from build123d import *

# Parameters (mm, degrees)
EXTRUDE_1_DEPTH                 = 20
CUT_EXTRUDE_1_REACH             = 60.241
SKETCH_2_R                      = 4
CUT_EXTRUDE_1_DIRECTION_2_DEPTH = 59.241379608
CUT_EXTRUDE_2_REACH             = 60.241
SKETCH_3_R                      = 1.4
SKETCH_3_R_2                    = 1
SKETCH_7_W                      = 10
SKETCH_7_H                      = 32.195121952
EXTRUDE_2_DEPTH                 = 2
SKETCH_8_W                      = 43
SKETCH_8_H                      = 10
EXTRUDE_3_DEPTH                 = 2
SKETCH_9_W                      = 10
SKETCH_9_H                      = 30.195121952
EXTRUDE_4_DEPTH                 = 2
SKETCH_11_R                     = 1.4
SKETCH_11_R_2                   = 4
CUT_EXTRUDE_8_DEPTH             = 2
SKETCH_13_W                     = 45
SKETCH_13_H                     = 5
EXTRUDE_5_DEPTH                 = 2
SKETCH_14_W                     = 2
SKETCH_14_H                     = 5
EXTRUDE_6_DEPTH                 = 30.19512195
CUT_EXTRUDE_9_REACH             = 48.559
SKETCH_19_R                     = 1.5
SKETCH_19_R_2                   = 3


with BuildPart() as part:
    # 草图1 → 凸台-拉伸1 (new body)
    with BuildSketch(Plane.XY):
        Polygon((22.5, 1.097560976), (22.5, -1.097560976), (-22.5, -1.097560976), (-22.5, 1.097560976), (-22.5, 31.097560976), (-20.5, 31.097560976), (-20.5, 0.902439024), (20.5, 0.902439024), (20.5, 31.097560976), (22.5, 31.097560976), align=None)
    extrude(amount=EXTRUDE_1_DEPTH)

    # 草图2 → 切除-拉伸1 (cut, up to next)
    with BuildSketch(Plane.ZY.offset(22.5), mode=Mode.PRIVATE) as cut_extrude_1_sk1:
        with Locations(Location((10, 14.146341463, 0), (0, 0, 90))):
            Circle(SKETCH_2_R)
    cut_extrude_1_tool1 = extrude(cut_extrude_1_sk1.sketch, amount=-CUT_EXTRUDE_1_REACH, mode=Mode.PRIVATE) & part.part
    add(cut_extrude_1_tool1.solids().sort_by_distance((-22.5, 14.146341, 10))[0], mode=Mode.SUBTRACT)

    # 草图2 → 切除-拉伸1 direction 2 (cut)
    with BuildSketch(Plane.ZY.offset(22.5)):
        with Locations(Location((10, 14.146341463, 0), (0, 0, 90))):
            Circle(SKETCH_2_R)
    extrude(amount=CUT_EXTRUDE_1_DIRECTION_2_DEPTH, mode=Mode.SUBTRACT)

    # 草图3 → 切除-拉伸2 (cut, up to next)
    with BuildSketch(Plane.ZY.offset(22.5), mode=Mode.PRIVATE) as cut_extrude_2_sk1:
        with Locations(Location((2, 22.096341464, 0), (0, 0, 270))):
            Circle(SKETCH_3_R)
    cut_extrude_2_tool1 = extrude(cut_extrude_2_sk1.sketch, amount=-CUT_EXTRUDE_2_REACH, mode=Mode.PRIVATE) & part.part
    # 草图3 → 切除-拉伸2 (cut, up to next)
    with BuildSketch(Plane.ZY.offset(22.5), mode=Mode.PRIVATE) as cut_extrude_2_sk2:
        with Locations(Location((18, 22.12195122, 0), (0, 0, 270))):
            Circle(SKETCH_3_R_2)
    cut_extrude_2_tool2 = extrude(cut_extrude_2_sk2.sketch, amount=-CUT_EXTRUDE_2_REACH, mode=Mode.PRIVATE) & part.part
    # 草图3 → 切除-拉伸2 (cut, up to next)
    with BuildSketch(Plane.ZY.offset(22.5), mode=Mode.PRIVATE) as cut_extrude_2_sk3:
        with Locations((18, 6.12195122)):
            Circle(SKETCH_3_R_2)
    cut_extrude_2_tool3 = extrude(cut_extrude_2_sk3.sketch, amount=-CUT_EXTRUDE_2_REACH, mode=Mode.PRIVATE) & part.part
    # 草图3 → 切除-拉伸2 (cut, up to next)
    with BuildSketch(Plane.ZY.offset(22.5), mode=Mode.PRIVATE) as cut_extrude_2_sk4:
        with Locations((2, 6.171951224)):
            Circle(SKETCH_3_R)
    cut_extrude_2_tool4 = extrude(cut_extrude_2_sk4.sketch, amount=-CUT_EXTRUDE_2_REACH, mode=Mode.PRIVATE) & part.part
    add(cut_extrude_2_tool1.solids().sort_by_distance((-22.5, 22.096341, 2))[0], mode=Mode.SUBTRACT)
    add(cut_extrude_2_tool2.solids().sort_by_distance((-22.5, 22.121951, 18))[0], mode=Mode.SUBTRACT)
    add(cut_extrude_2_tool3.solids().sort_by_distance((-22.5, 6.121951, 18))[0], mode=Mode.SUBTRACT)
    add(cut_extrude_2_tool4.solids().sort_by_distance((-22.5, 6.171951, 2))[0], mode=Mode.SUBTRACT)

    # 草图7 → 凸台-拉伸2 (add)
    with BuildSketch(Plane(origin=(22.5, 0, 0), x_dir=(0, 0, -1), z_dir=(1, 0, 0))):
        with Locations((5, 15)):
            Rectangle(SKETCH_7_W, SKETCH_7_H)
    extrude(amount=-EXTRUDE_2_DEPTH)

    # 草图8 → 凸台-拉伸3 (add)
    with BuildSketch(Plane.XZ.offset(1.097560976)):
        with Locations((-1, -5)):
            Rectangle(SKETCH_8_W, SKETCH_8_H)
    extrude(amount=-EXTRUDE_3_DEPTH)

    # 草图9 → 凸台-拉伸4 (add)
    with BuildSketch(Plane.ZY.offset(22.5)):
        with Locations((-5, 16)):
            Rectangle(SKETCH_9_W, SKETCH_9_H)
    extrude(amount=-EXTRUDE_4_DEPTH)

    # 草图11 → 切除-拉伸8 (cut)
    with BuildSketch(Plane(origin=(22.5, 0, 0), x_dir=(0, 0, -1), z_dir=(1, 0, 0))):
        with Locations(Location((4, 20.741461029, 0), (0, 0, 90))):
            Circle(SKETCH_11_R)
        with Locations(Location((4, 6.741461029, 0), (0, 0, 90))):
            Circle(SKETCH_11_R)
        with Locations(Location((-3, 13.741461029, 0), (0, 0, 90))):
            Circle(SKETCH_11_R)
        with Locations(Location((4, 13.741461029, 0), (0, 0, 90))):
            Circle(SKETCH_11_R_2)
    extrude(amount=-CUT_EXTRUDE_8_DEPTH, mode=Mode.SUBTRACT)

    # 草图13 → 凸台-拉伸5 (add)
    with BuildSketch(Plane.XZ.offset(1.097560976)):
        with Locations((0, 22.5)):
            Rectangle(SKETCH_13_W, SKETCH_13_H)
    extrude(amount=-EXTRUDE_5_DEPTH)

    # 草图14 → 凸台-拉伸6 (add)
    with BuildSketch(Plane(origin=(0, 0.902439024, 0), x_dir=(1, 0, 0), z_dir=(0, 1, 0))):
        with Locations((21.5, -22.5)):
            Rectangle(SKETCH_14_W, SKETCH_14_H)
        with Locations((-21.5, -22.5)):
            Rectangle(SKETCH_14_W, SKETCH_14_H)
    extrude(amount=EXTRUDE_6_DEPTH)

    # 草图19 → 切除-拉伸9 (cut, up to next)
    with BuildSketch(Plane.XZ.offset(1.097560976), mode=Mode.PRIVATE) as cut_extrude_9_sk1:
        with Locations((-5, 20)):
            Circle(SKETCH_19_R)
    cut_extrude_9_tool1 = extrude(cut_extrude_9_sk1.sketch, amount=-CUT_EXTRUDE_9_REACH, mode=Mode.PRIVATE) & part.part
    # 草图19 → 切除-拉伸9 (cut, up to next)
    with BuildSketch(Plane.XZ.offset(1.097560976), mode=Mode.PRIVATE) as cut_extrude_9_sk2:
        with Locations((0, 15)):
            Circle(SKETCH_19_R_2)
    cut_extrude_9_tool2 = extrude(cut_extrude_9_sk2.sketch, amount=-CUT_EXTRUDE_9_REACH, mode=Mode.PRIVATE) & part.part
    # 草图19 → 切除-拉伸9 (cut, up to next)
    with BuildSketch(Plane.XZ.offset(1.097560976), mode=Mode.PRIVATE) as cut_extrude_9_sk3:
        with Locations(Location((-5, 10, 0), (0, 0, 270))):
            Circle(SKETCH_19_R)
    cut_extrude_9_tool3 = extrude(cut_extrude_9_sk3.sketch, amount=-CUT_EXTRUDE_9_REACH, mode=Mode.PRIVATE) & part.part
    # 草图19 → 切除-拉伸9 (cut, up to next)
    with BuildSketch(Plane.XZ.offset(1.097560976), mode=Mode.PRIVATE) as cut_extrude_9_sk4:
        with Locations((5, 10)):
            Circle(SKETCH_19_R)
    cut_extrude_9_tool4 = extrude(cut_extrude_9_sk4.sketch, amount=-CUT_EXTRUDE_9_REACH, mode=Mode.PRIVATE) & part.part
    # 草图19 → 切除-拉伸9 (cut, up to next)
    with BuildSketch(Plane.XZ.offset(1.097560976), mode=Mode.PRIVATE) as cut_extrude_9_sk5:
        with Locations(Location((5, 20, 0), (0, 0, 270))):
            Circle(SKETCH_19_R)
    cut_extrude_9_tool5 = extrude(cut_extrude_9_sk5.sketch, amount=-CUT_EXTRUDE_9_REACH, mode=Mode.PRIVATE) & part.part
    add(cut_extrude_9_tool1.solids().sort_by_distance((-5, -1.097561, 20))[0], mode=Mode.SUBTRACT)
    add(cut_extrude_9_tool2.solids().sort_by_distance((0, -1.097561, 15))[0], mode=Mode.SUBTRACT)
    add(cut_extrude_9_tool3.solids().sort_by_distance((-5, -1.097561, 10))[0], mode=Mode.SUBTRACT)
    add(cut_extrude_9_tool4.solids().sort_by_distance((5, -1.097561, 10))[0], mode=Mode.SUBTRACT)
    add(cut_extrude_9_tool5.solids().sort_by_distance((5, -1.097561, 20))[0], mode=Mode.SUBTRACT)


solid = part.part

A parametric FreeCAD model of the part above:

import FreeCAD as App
import Part
import Sketcher

V = App.Vector
Q = App.Units.Quantity


def add_polygon(sketch, points):
    """Adds a closed chain of lines whose ends are joined by coincident constraints."""
    first, n = sketch.GeometryCount, len(points)
    for a, b in zip(points, points[1:] + points[:1]):
        sketch.addGeometry(Part.LineSegment(App.Vector(*a, 0), App.Vector(*b, 0)), False)
    for i in range(n):
        sketch.addConstraint(Sketcher.Constraint("Coincident", first + i, 2, first + (i + 1) % n, 1))

doc = App.newDocument("Part")
params = doc.addObject("Spreadsheet::Sheet", "Params")
for row, (alias, value) in enumerate([
    ("sketch1_width", "2 mm"),
    ("sketch1_width2", "41 mm"),
    ("pad1_length", "20 mm"),
    ("sketch2_diameter", "8 mm"),
    ("sketch3_diameter", "8 mm"),
    ("pocket2_length", "59.24138 mm"),
    ("sketch4_diameter", "2.8 mm"),
    ("sketch5_diameter", "2 mm"),
    ("sketch6_diameter", "2 mm"),
    ("sketch7_diameter", "2.8 mm"),
    ("sketch8_height", "10 mm"),
    ("pad2_length", "2 mm"),
    ("sketch9_width", "43 mm"),
    ("sketch9_height", "10 mm"),
    ("pad3_length", "2 mm"),
    ("sketch10_height", "10 mm"),
    ("pad4_length", "2 mm"),
    ("sketch11_diameter", "8 mm"),
    ("sketch11_diameter2", "2.8 mm"),
    ("pocket7_length", "2 mm"),
    ("sketch12_width", "45 mm"),
    ("sketch12_height", "5 mm"),
    ("pad5_length", "2 mm"),
    ("sketch13_width", "2 mm"),
    ("sketch13_height", "5 mm"),
    ("pad6_length", "30.195122 mm"),
    ("sketch14_diameter", "3 mm"),
    ("sketch15_diameter", "6 mm"),
    ("sketch16_diameter", "3 mm"),
    ("sketch17_diameter", "3 mm"),
    ("sketch18_diameter", "3 mm"),
], start=1):
    params.set(f"A{row}", alias)
    params.set(f"B{row}", "=" + value)
    params.setAlias(f"B{row}", alias)

body = doc.addObject("PartDesign::Body", "Body")

# Sketch on XY plane
sketch1 = doc.addObject("Sketcher::SketchObject", "Sketch")
body.addObject(sketch1)
sketch1.AttachmentSupport = (doc.XY_Plane, [""])
sketch1.MapMode = "FlatFace"
add_polygon(sketch1, [(22.5, -1.097561), (22.5, 31.097561), (20.5, 31.097561), (20.5, 0.902439), (-20.5, 0.902439), (-20.5, 31.097561), (-22.5, 31.097561), (-22.5, -1.097561)])  # lines 0-7
sketch1.addConstraint([
    Sketcher.Constraint("Vertical", 0),
    Sketcher.Constraint("Horizontal", 1),
    Sketcher.Constraint("Vertical", 2),
    Sketcher.Constraint("Horizontal", 3),
    Sketcher.Constraint("Vertical", 4),
    Sketcher.Constraint("Horizontal", 5),
    Sketcher.Constraint("Vertical", 6),
    Sketcher.Constraint("Horizontal", 7),
    Sketcher.Constraint("Symmetric", 1, 2, 4, 2, -2),
    Sketcher.Constraint("Equal", 1, 5),
    Sketcher.Constraint("DistanceX", 1, 2, 1, 1, Q("2 mm")),
    Sketcher.Constraint("DistanceX", 3, 2, 3, 1, Q("41 mm")),
    Sketcher.Constraint("DistanceY", 6, 2, 3, 2, Q("2 mm")),
    Sketcher.Constraint("DistanceY", 0, 1, 0, 2, Q("32.195122 mm")),
    Sketcher.Constraint("DistanceY", -1, 1, 0, 2, Q("31.097561 mm")),
])
sketch1.setExpression("Constraints[18]", "Params.sketch1_width")
sketch1.setExpression("Constraints[19]", "Params.sketch1_width2")
pad1 = doc.addObject("PartDesign::Pad", "Pad")
body.addObject(pad1)
pad1.Profile = sketch1
pad1.setExpression("Length", "Params.pad1_length")

# Sketch on YZ plane
sketch2 = doc.addObject("Sketcher::SketchObject", "Sketch001")
body.addObject(sketch2)
sketch2.AttachmentSupport = (doc.YZ_Plane, [""])
sketch2.MapMode = "FlatFace"
sketch2.AttachmentOffset = App.Placement(V(0, 0, -22.5), App.Rotation())
sketch2.addGeometry(Part.Circle(V(14.146341, 10, 0), V(0, 0, 1), 4), False)
sketch2.addConstraint([
    Sketcher.Constraint("Diameter", 0, Q("8 mm")),
    Sketcher.Constraint("DistanceY", -1, 1, 0, 3, Q("10 mm")),
    Sketcher.Constraint("DistanceX", -1, 1, 0, 3, Q("14.146341 mm")),
])
sketch2.setExpression("Constraints[0]", "Params.sketch2_diameter")
pocket1 = doc.addObject("PartDesign::Pocket", "Pocket")
body.addObject(pocket1)
pocket1.Profile = sketch2
pocket1.Type = "UpToFirst"
pocket1.Reversed = True

# Sketch on YZ plane
sketch3 = doc.addObject("Sketcher::SketchObject", "Sketch002")
body.addObject(sketch3)
sketch3.AttachmentSupport = (doc.YZ_Plane, [""])
sketch3.MapMode = "FlatFace"
sketch3.AttachmentOffset = App.Placement(V(0, 0, -22.5), App.Rotation())
sketch3.addGeometry(Part.Circle(V(14.146341, 10, 0), V(0, 0, 1), 4), False)
sketch3.addConstraint([
    Sketcher.Constraint("Diameter", 0, Q("8 mm")),
    Sketcher.Constraint("DistanceY", -1, 1, 0, 3, Q("10 mm")),
    Sketcher.Constraint("DistanceX", -1, 1, 0, 3, Q("14.146341 mm")),
])
sketch3.setExpression("Constraints[0]", "Params.sketch3_diameter")
pocket2 = doc.addObject("PartDesign::Pocket", "Pocket001")
body.addObject(pocket2)
pocket2.Profile = sketch3
pocket2.setExpression("Length", "Params.pocket2_length")

# Sketch on YZ plane
sketch4 = doc.addObject("Sketcher::SketchObject", "Sketch003")
body.addObject(sketch4)
sketch4.AttachmentSupport = (doc.YZ_Plane, [""])
sketch4.MapMode = "FlatFace"
sketch4.AttachmentOffset = App.Placement(V(0, 0, -22.5), App.Rotation())
sketch4.addGeometry(Part.Circle(V(22.096341, 2, 0), V(0, 0, 1), 1.4), False)
sketch4.addConstraint([
    Sketcher.Constraint("Diameter", 0, Q("2.8 mm")),
    Sketcher.Constraint("DistanceY", -1, 1, 0, 3, Q("2 mm")),
    Sketcher.Constraint("DistanceX", -1, 1, 0, 3, Q("22.096341 mm")),
])
sketch4.setExpression("Constraints[0]", "Params.sketch4_diameter")
pocket3 = doc.addObject("PartDesign::Pocket", "Pocket002")
body.addObject(pocket3)
pocket3.Profile = sketch4
pocket3.Type = "UpToFirst"
pocket3.Reversed = True

# Sketch on YZ plane
sketch5 = doc.addObject("Sketcher::SketchObject", "Sketch004")
body.addObject(sketch5)
sketch5.AttachmentSupport = (doc.YZ_Plane, [""])
sketch5.MapMode = "FlatFace"
sketch5.AttachmentOffset = App.Placement(V(0, 0, -22.5), App.Rotation())
sketch5.addGeometry(Part.Circle(V(22.121951, 18, 0), V(0, 0, 1), 1), False)
sketch5.addConstraint([
    Sketcher.Constraint("Diameter", 0, Q("2 mm")),
    Sketcher.Constraint("DistanceY", -1, 1, 0, 3, Q("18 mm")),
    Sketcher.Constraint("DistanceX", -1, 1, 0, 3, Q("22.121951 mm")),
])
sketch5.setExpression("Constraints[0]", "Params.sketch5_diameter")
pocket4 = doc.addObject("PartDesign::Pocket", "Pocket003")
body.addObject(pocket4)
pocket4.Profile = sketch5
pocket4.Type = "UpToFirst"
pocket4.Reversed = True

# Sketch on YZ plane
sketch6 = doc.addObject("Sketcher::SketchObject", "Sketch005")
body.addObject(sketch6)
sketch6.AttachmentSupport = (doc.YZ_Plane, [""])
sketch6.MapMode = "FlatFace"
sketch6.AttachmentOffset = App.Placement(V(0, 0, -22.5), App.Rotation())
sketch6.addGeometry(Part.Circle(V(6.121951, 18, 0), V(0, 0, 1), 1), False)
sketch6.addConstraint([
    Sketcher.Constraint("Diameter", 0, Q("2 mm")),
    Sketcher.Constraint("DistanceY", -1, 1, 0, 3, Q("18 mm")),
    Sketcher.Constraint("DistanceX", -1, 1, 0, 3, Q("6.121951 mm")),
])
sketch6.setExpression("Constraints[0]", "Params.sketch6_diameter")
pocket5 = doc.addObject("PartDesign::Pocket", "Pocket004")
body.addObject(pocket5)
pocket5.Profile = sketch6
pocket5.Type = "UpToFirst"
pocket5.Reversed = True

# Sketch on YZ plane
sketch7 = doc.addObject("Sketcher::SketchObject", "Sketch006")
body.addObject(sketch7)
sketch7.AttachmentSupport = (doc.YZ_Plane, [""])
sketch7.MapMode = "FlatFace"
sketch7.AttachmentOffset = App.Placement(V(0, 0, -22.5), App.Rotation())
sketch7.addGeometry(Part.Circle(V(6.171951, 2, 0), V(0, 0, 1), 1.4), False)
sketch7.addConstraint([
    Sketcher.Constraint("Diameter", 0, Q("2.8 mm")),
    Sketcher.Constraint("DistanceY", -1, 1, 0, 3, Q("2 mm")),
    Sketcher.Constraint("DistanceX", -1, 1, 0, 3, Q("6.171951 mm")),
])
sketch7.setExpression("Constraints[0]", "Params.sketch7_diameter")
pocket6 = doc.addObject("PartDesign::Pocket", "Pocket005")
body.addObject(pocket6)
pocket6.Profile = sketch7
pocket6.Type = "UpToFirst"
pocket6.Reversed = True

# Sketch on YZ plane
sketch8 = doc.addObject("Sketcher::SketchObject", "Sketch007")
body.addObject(sketch8)
sketch8.AttachmentSupport = (doc.YZ_Plane, [""])
sketch8.MapMode = "FlatFace"
sketch8.AttachmentOffset = App.Placement(V(0, 0, 22.5), App.Rotation())
add_polygon(sketch8, [(31.097561, 0), (-1.097561, 0), (-1.097561, -10), (31.097561, -10)])  # lines 0-3
sketch8.addConstraint([
    Sketcher.Constraint("Horizontal", 0),
    Sketcher.Constraint("Vertical", 1),
    Sketcher.Constraint("Horizontal", 2),
    Sketcher.Constraint("Vertical", 3),
    Sketcher.Constraint("PointOnObject", 0, 2, -1),
    Sketcher.Constraint("DistanceY", 1, 2, 1, 1, Q("10 mm")),
    Sketcher.Constraint("DistanceX", 0, 2, 0, 1, Q("32.195122 mm")),
    Sketcher.Constraint("DistanceX", 0, 2, -1, 1, Q("1.097561 mm")),
])
sketch8.setExpression("Constraints[9]", "Params.sketch8_height")
pad2 = doc.addObject("PartDesign::Pad", "Pad001")
body.addObject(pad2)
pad2.Profile = sketch8
pad2.setExpression("Length", "Params.pad2_length")
pad2.Reversed = True

# Sketch on XZ plane
sketch9 = doc.addObject("Sketcher::SketchObject", "Sketch008")
body.addObject(sketch9)
sketch9.AttachmentSupport = (doc.XZ_Plane, [""])
sketch9.MapMode = "FlatFace"
sketch9.AttachmentOffset = App.Placement(V(0, 0, 1.097561), App.Rotation())
add_polygon(sketch9, [(-22.5, 0), (-22.5, -10), (20.5, -10), (20.5, 0)])  # lines 0-3
sketch9.addConstraint([
    Sketcher.Constraint("Vertical", 0),
    Sketcher.Constraint("Horizontal", 1),
    Sketcher.Constraint("Vertical", 2),
    Sketcher.Constraint("Horizontal", 3),
    Sketcher.Constraint("PointOnObject", 2, 2, -1),
    Sketcher.Constraint("DistanceX", 1, 1, 1, 2, Q("43 mm")),
    Sketcher.Constraint("DistanceY", 0, 2, 0, 1, Q("10 mm")),
    Sketcher.Constraint("DistanceX", 0, 2, -1, 1, Q("22.5 mm")),
])
sketch9.setExpression("Constraints[9]", "Params.sketch9_width")
sketch9.setExpression("Constraints[10]", "Params.sketch9_height")
pad3 = doc.addObject("PartDesign::Pad", "Pad002")
body.addObject(pad3)
pad3.Profile = sketch9
pad3.setExpression("Length", "Params.pad3_length")
pad3.Reversed = True

# Sketch on YZ plane
sketch10 = doc.addObject("Sketcher::SketchObject", "Sketch009")
body.addObject(sketch10)
sketch10.AttachmentSupport = (doc.YZ_Plane, [""])
sketch10.MapMode = "FlatFace"
sketch10.AttachmentOffset = App.Placement(V(0, 0, -22.5), App.Rotation())
add_polygon(sketch10, [(31.097561, -10), (0.902439, -10), (0.902439, 0), (31.097561, 0)])  # lines 0-3
sketch10.addConstraint([
    Sketcher.Constraint("Horizontal", 0),
    Sketcher.Constraint("Vertical", 1),
    Sketcher.Constraint("Horizontal", 2),
    Sketcher.Constraint("Vertical", 3),
    Sketcher.Constraint("PointOnObject", 1, 2, -1),
    Sketcher.Constraint("DistanceY", 1, 1, 1, 2, Q("10 mm")),
    Sketcher.Constraint("DistanceX", 0, 2, 0, 1, Q("30.195122 mm")),
    Sketcher.Constraint("DistanceX", -1, 1, 0, 2, Q("0.902439 mm")),
])
sketch10.setExpression("Constraints[9]", "Params.sketch10_height")
pad4 = doc.addObject("PartDesign::Pad", "Pad003")
body.addObject(pad4)
pad4.Profile = sketch10
pad4.setExpression("Length", "Params.pad4_length")

# Sketch on YZ plane
sketch11 = doc.addObject("Sketcher::SketchObject", "Sketch010")
body.addObject(sketch11)
sketch11.AttachmentSupport = (doc.YZ_Plane, [""])
sketch11.MapMode = "FlatFace"
sketch11.AttachmentOffset = App.Placement(V(0, 0, 22.5), App.Rotation())
sketch11.addGeometry([
    Part.Circle(V(20.741461, -4, 0), V(0, 0, 1), 1.4),
    Part.Circle(V(6.741461, -4, 0), V(0, 0, 1), 1.4),
    Part.Circle(V(13.741461, 3, 0), V(0, 0, 1), 1.4),
    Part.Circle(V(13.741461, -4, 0), V(0, 0, 1), 4),
], False)
sketch11.addConstraint([
    Sketcher.Constraint("Equal", 0, 1),
    Sketcher.Constraint("Equal", 1, 2),
    Sketcher.Constraint("Horizontal", 0, 3, 1, 3),
    Sketcher.Constraint("Horizontal", 1, 3, 3, 3),
    Sketcher.Constraint("Vertical", 2, 3, 3, 3),
    Sketcher.Constraint("Diameter", 3, Q("8 mm")),
    Sketcher.Constraint("Diameter", 0, Q("2.8 mm")),
    Sketcher.Constraint("DistanceY", 0, 3, -1, 1, Q("4 mm")),
    Sketcher.Constraint("DistanceY", -1, 1, 2, 3, Q("3 mm")),
    Sketcher.Constraint("DistanceX", 1, 3, 0, 3, Q("14 mm")),
    Sketcher.Constraint("DistanceX", 2, 3, 0, 3, Q("7 mm")),
    Sketcher.Constraint("DistanceX", -1, 1, 0, 3, Q("20.741461 mm")),
])
sketch11.setExpression("Constraints[5]", "Params.sketch11_diameter")
sketch11.setExpression("Constraints[6]", "Params.sketch11_diameter2")
pocket7 = doc.addObject("PartDesign::Pocket", "Pocket006")
body.addObject(pocket7)
pocket7.Profile = sketch11
pocket7.setExpression("Length", "Params.pocket7_length")

# Sketch on XZ plane
sketch12 = doc.addObject("Sketcher::SketchObject", "Sketch011")
body.addObject(sketch12)
sketch12.AttachmentSupport = (doc.XZ_Plane, [""])
sketch12.MapMode = "FlatFace"
sketch12.AttachmentOffset = App.Placement(V(0, 0, 1.097561), App.Rotation())
add_polygon(sketch12, [(-22.5, 25), (-22.5, 20), (22.5, 20), (22.5, 25)])  # lines 0-3
sketch12.addConstraint([
    Sketcher.Constraint("Vertical", 0),
    Sketcher.Constraint("Horizontal", 1),
    Sketcher.Constraint("Vertical", 2),
    Sketcher.Constraint("Horizontal", 3),
    Sketcher.Constraint("DistanceX", 1, 1, 1, 2, Q("45 mm")),
    Sketcher.Constraint("DistanceY", 0, 2, 0, 1, Q("5 mm")),
    Sketcher.Constraint("DistanceY", -1, 1, 0, 2, Q("20 mm")),
    Sketcher.Constraint("DistanceX", 0, 2, -1, 1, Q("22.5 mm")),
])
sketch12.setExpression("Constraints[8]", "Params.sketch12_width")
sketch12.setExpression("Constraints[9]", "Params.sketch12_height")
pad5 = doc.addObject("PartDesign::Pad", "Pad004")
body.addObject(pad5)
pad5.Profile = sketch12
pad5.setExpression("Length", "Params.pad5_length")
pad5.Reversed = True

# Sketch on XZ plane
sketch13 = doc.addObject("Sketcher::SketchObject", "Sketch012")
body.addObject(sketch13)
sketch13.AttachmentSupport = (doc.XZ_Plane, [""])
sketch13.MapMode = "FlatFace"
sketch13.AttachmentOffset = App.Placement(V(0, 0, -0.902439), App.Rotation())
add_polygon(sketch13, [(20.5, 20), (20.5, 25), (22.5, 25), (22.5, 20)])  # lines 0-3
add_polygon(sketch13, [(-22.5, 20), (-22.5, 25), (-20.5, 25), (-20.5, 20)])  # lines 4-7
sketch13.addConstraint([
    Sketcher.Constraint("Vertical", 0),
    Sketcher.Constraint("Horizontal", 1),
    Sketcher.Constraint("Vertical", 2),
    Sketcher.Constraint("Horizontal", 3),
    Sketcher.Constraint("Vertical", 4),
    Sketcher.Constraint("Horizontal", 5),
    Sketcher.Constraint("Vertical", 6),
    Sketcher.Constraint("Horizontal", 7),
    Sketcher.Constraint("Symmetric", 1, 2, 4, 2, -2),
    Sketcher.Constraint("Symmetric", 3, 2, 6, 2, -2),
    Sketcher.Constraint("DistanceX", 1, 1, 1, 2, Q("2 mm")),
    Sketcher.Constraint("DistanceY", 0, 1, 0, 2, Q("5 mm")),
    Sketcher.Constraint("DistanceY", -1, 1, 0, 2, Q("25 mm")),
    Sketcher.Constraint("DistanceX", 4, 2, 0, 2, Q("43 mm")),
])
sketch13.setExpression("Constraints[18]", "Params.sketch13_width")
sketch13.setExpression("Constraints[19]", "Params.sketch13_height")
pad6 = doc.addObject("PartDesign::Pad", "Pad005")
body.addObject(pad6)
pad6.Profile = sketch13
pad6.setExpression("Length", "Params.pad6_length")
pad6.Reversed = True

# Sketch on XZ plane
sketch14 = doc.addObject("Sketcher::SketchObject", "Sketch013")
body.addObject(sketch14)
sketch14.AttachmentSupport = (doc.XZ_Plane, [""])
sketch14.MapMode = "FlatFace"
sketch14.AttachmentOffset = App.Placement(V(0, 0, 1.097561), App.Rotation())
sketch14.addGeometry(Part.Circle(V(-5, 20, 0), V(0, 0, 1), 1.5), False)
sketch14.addConstraint([
    Sketcher.Constraint("Diameter", 0, Q("3 mm")),
    Sketcher.Constraint("DistanceX", 0, 3, -1, 1, Q("5 mm")),
    Sketcher.Constraint("DistanceY", -1, 1, 0, 3, Q("20 mm")),
])
sketch14.setExpression("Constraints[0]", "Params.sketch14_diameter")
pocket8 = doc.addObject("PartDesign::Pocket", "Pocket007")
body.addObject(pocket8)
pocket8.Profile = sketch14
pocket8.Type = "UpToFirst"

# Sketch on XZ plane
sketch15 = doc.addObject("Sketcher::SketchObject", "Sketch014")
body.addObject(sketch15)
sketch15.AttachmentSupport = (doc.XZ_Plane, [""])
sketch15.MapMode = "FlatFace"
sketch15.AttachmentOffset = App.Placement(V(0, 0, 1.097561), App.Rotation())
sketch15.addGeometry(Part.Circle(V(0, 15, 0), V(0, 0, 1), 3), False)
sketch15.addConstraint([
    Sketcher.Constraint("PointOnObject", 0, 3, -2),
    Sketcher.Constraint("Diameter", 0, Q("6 mm")),
    Sketcher.Constraint("DistanceY", -1, 1, 0, 3, Q("15 mm")),
])
sketch15.setExpression("Constraints[1]", "Params.sketch15_diameter")
pocket9 = doc.addObject("PartDesign::Pocket", "Pocket008")
body.addObject(pocket9)
pocket9.Profile = sketch15
pocket9.Type = "UpToFirst"

# Sketch on XZ plane
sketch16 = doc.addObject("Sketcher::SketchObject", "Sketch015")
body.addObject(sketch16)
sketch16.AttachmentSupport = (doc.XZ_Plane, [""])
sketch16.MapMode = "FlatFace"
sketch16.AttachmentOffset = App.Placement(V(0, 0, 1.097561), App.Rotation())
sketch16.addGeometry(Part.Circle(V(-5, 10, 0), V(0, 0, 1), 1.5), False)
sketch16.addConstraint([
    Sketcher.Constraint("Diameter", 0, Q("3 mm")),
    Sketcher.Constraint("DistanceX", 0, 3, -1, 1, Q("5 mm")),
    Sketcher.Constraint("DistanceY", -1, 1, 0, 3, Q("10 mm")),
])
sketch16.setExpression("Constraints[0]", "Params.sketch16_diameter")
pocket10 = doc.addObject("PartDesign::Pocket", "Pocket009")
body.addObject(pocket10)
pocket10.Profile = sketch16
pocket10.Type = "UpToFirst"

# Sketch on XZ plane
sketch17 = doc.addObject("Sketcher::SketchObject", "Sketch016")
body.addObject(sketch17)
sketch17.AttachmentSupport = (doc.XZ_Plane, [""])
sketch17.MapMode = "FlatFace"
sketch17.AttachmentOffset = App.Placement(V(0, 0, 1.097561), App.Rotation())
sketch17.addGeometry(Part.Circle(V(5, 10, 0), V(0, 0, 1), 1.5), False)
sketch17.addConstraint([
    Sketcher.Constraint("Diameter", 0, Q("3 mm")),
    Sketcher.Constraint("DistanceX", -1, 1, 0, 3, Q("5 mm")),
    Sketcher.Constraint("DistanceY", -1, 1, 0, 3, Q("10 mm")),
])
sketch17.setExpression("Constraints[0]", "Params.sketch17_diameter")
pocket11 = doc.addObject("PartDesign::Pocket", "Pocket010")
body.addObject(pocket11)
pocket11.Profile = sketch17
pocket11.Type = "UpToFirst"

# Sketch on XZ plane
sketch18 = doc.addObject("Sketcher::SketchObject", "Sketch017")
body.addObject(sketch18)
sketch18.AttachmentSupport = (doc.XZ_Plane, [""])
sketch18.MapMode = "FlatFace"
sketch18.AttachmentOffset = App.Placement(V(0, 0, 1.097561), App.Rotation())
sketch18.addGeometry(Part.Circle(V(5, 20, 0), V(0, 0, 1), 1.5), False)
sketch18.addConstraint([
    Sketcher.Constraint("Diameter", 0, Q("3 mm")),
    Sketcher.Constraint("DistanceX", -1, 1, 0, 3, Q("5 mm")),
    Sketcher.Constraint("DistanceY", -1, 1, 0, 3, Q("20 mm")),
])
sketch18.setExpression("Constraints[0]", "Params.sketch18_diameter")
pocket12 = doc.addObject("PartDesign::Pocket", "Pocket011")
body.addObject(pocket12)
pocket12.Profile = sketch18
pocket12.Type = "UpToFirst"

doc.recompute()
